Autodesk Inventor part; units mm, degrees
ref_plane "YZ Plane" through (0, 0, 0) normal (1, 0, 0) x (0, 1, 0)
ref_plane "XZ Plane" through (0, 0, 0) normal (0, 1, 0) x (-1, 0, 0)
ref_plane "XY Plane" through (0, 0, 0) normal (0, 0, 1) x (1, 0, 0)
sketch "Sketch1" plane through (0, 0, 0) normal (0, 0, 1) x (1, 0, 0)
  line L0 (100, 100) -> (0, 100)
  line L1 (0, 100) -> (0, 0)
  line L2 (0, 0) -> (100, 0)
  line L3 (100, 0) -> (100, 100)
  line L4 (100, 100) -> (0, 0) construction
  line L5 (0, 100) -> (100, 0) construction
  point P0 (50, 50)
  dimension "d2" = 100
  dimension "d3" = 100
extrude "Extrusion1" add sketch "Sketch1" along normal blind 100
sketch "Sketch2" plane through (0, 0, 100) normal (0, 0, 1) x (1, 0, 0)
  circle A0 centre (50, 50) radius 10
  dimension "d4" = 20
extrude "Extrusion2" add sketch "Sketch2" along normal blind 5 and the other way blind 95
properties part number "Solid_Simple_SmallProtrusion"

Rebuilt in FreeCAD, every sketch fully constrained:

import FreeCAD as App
import Part
import Sketcher

doc = App.newDocument("Part")
params = doc.addObject("Spreadsheet::Sheet", "Params")
for row, (alias, value) in enumerate([
    ("sketch1_width", "100 mm"),
    ("pad1_length", "100 mm"),
    ("sketch2_diameter", "20 mm"),
    ("pad2_length", "5 mm"),
    ("pad2_length2", "95 mm"),
], start=1):
    params.set(f"A{row}", alias)
    params.set(f"B{row}", "=" + value)
    params.setAlias(f"B{row}", alias)

body = doc.addObject("PartDesign::Body", "Body")

# Sketch on XY plane
sketch1 = body.newObject("Sketcher::SketchObject", "Sketch")
sketch1.AttachmentSupport = (doc.getObject("XY_Plane"), [""])
sketch1.MapMode = "FlatFace"
sketch1.addGeometry([
    Part.LineSegment(App.Vector(100, 0, 0), App.Vector(100, 100, 0)),
    Part.LineSegment(App.Vector(100, 100, 0), App.Vector(0, 100, 0)),
    Part.LineSegment(App.Vector(0, 100, 0), App.Vector(0, 0, 0)),
    Part.LineSegment(App.Vector(0, 0, 0), App.Vector(100, 0, 0)),
], False)
sketch1.addConstraint([
    Sketcher.Constraint("Coincident", 0, 2, 1, 1),
    Sketcher.Constraint("Coincident", 1, 2, 2, 1),
    Sketcher.Constraint("Coincident", 2, 2, 3, 1),
    Sketcher.Constraint("Coincident", 3, 2, 0, 1),
    Sketcher.Constraint("Vertical", 0),
    Sketcher.Constraint("Horizontal", 1),
    Sketcher.Constraint("Vertical", 2),
    Sketcher.Constraint("Horizontal", 3),
    Sketcher.Constraint("Coincident", 2, 2, -1, 1),
    Sketcher.Constraint("Equal", 3, 0),
    Sketcher.Constraint("DistanceX", 1, 2, 1, 1, 100.0),
])
sketch1.setExpression("Constraints[10]", "Params.sketch1_width")
pad1 = body.newObject("PartDesign::Pad", "Pad")
pad1.Profile = sketch1
pad1.setExpression("Length", "Params.pad1_length")

# Sketch on XY plane
sketch2 = body.newObject("Sketcher::SketchObject", "Sketch001")
sketch2.AttachmentSupport = (doc.getObject("XY_Plane"), [""])
sketch2.MapMode = "FlatFace"
sketch2.AttachmentOffset = App.Placement(App.Vector(0, 0, 100), App.Rotation())
sketch2.addGeometry(Part.Circle(App.Vector(50, 50, 0), App.Vector(0, 0, 1), 10), False)
sketch2.addConstraint([
    Sketcher.Constraint("Diameter", 0, 20.0),
    Sketcher.Constraint("DistanceX", -1, 1, 0, 3, 50.0),
    Sketcher.Constraint("DistanceY", -1, 1, 0, 3, 50.0),
])
sketch2.setExpression("Constraints[0]", "Params.sketch2_diameter")
pad2 = body.newObject("PartDesign::Pad", "Pad001")
pad2.Profile = sketch2
pad2.Type = "TwoLengths"
pad2.setExpression("Length", "Params.pad2_length")
pad2.setExpression("Length2", "Params.pad2_length2")

doc.recompute()
